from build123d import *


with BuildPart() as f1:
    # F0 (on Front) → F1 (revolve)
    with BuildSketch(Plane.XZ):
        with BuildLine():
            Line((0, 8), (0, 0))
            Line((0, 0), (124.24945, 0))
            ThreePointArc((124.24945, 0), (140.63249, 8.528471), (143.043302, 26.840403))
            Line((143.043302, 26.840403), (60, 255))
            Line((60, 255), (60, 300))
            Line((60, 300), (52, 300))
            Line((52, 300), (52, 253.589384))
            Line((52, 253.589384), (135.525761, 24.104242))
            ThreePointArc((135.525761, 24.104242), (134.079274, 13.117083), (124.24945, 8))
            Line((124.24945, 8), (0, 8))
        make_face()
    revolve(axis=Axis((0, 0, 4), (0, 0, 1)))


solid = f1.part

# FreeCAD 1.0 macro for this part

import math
import FreeCAD as App
import Part
import Sketcher

V = App.Vector
Q = App.Units.Quantity

doc = App.newDocument("Part")
body = doc.addObject("PartDesign::Body", "Body")

# Sketch on XZ plane
sketch1 = body.newObject("Sketcher::SketchObject", "Sketch")
sketch1.AttachmentSupport = (doc.getObject("XZ_Plane"), [""])
sketch1.MapMode = "FlatFace"
sketch1.addGeometry([
    Part.LineSegment(V(0, 8, 0), V(0, 0, 0)),  # 0
    Part.LineSegment(V(0, 0, 0), V(124, 0, 0)),  # 1
    Part.ArcOfCircle(Part.Circle(V(124, 20, 0), V(0, 0, 1), 20), math.radians(-90), math.radians(20)),  # 2
    Part.LineSegment(V(143, 27, 0), V(60, 255, 0)),  # 3
    Part.LineSegment(V(60, 255, 0), V(60, 300, 0)),  # 4
    Part.LineSegment(V(60, 300, 0), V(52, 300, 0)),  # 5
    Part.LineSegment(V(52, 300, 0), V(52, 254, 0)),  # 6
    Part.LineSegment(V(52, 254, 0), V(136, 24, 0)),  # 7
    Part.ArcOfCircle(Part.Circle(V(124, 20, 0), V(0, 0, 1), 12), math.radians(-90), math.radians(20)),  # 8
    Part.LineSegment(V(124, 8, 0), V(0, 8, 0)),  # 9
], False)
sketch1.addConstraint([
    Sketcher.Constraint("Coincident", 0, 2, 1, 1),
    Sketcher.Constraint("Tangent", 1, 2, 2, 1),
    Sketcher.Constraint("Tangent", 2, 2, 3, 1),
    Sketcher.Constraint("Coincident", 3, 2, 4, 1),
    Sketcher.Constraint("Coincident", 4, 2, 5, 1),
    Sketcher.Constraint("Coincident", 5, 2, 6, 1),
    Sketcher.Constraint("Coincident", 6, 2, 7, 1),
    Sketcher.Constraint("Tangent", 7, 2, 8, 2),
    Sketcher.Constraint("Tangent", 8, 1, 9, 1),
    Sketcher.Constraint("Coincident", 9, 2, 0, 1),
    Sketcher.Constraint("Vertical", 0),
    Sketcher.Constraint("Horizontal", 1),
    Sketcher.Constraint("Vertical", 4),
    Sketcher.Constraint("Horizontal", 5),
    Sketcher.Constraint("Vertical", 6),
    Sketcher.Constraint("Horizontal", 9),
    Sketcher.Constraint("Coincident", 0, 2, -1, 1),
    Sketcher.Constraint("Coincident", 8, 3, 2, 3),
    Sketcher.Constraint("Parallel", 3, 7),
    Sketcher.Constraint("Equal", 5, 0),
    Sketcher.Constraint("Radius", 2, Q("20 mm")),
    Sketcher.Constraint("Radius", 8, Q("12 mm")),
    Sketcher.Constraint("DistanceY", 4, 1, 4, 2, Q("45 mm")),
    Sketcher.Constraint("Angle", 3, Q("110 deg")),
    Sketcher.Constraint("DistanceX", -1, 1, 3, 2, Q("60 mm")),
    Sketcher.Constraint("DistanceY", -1, 1, 3, 2, Q("255 mm")),
])
revolution = body.newObject("PartDesign::Revolution", "Revolution")
revolution.Profile = sketch1
revolution.ReferenceAxis = (sketch1, ["V_Axis"])
revolution.Angle = 360

doc.recompute()
